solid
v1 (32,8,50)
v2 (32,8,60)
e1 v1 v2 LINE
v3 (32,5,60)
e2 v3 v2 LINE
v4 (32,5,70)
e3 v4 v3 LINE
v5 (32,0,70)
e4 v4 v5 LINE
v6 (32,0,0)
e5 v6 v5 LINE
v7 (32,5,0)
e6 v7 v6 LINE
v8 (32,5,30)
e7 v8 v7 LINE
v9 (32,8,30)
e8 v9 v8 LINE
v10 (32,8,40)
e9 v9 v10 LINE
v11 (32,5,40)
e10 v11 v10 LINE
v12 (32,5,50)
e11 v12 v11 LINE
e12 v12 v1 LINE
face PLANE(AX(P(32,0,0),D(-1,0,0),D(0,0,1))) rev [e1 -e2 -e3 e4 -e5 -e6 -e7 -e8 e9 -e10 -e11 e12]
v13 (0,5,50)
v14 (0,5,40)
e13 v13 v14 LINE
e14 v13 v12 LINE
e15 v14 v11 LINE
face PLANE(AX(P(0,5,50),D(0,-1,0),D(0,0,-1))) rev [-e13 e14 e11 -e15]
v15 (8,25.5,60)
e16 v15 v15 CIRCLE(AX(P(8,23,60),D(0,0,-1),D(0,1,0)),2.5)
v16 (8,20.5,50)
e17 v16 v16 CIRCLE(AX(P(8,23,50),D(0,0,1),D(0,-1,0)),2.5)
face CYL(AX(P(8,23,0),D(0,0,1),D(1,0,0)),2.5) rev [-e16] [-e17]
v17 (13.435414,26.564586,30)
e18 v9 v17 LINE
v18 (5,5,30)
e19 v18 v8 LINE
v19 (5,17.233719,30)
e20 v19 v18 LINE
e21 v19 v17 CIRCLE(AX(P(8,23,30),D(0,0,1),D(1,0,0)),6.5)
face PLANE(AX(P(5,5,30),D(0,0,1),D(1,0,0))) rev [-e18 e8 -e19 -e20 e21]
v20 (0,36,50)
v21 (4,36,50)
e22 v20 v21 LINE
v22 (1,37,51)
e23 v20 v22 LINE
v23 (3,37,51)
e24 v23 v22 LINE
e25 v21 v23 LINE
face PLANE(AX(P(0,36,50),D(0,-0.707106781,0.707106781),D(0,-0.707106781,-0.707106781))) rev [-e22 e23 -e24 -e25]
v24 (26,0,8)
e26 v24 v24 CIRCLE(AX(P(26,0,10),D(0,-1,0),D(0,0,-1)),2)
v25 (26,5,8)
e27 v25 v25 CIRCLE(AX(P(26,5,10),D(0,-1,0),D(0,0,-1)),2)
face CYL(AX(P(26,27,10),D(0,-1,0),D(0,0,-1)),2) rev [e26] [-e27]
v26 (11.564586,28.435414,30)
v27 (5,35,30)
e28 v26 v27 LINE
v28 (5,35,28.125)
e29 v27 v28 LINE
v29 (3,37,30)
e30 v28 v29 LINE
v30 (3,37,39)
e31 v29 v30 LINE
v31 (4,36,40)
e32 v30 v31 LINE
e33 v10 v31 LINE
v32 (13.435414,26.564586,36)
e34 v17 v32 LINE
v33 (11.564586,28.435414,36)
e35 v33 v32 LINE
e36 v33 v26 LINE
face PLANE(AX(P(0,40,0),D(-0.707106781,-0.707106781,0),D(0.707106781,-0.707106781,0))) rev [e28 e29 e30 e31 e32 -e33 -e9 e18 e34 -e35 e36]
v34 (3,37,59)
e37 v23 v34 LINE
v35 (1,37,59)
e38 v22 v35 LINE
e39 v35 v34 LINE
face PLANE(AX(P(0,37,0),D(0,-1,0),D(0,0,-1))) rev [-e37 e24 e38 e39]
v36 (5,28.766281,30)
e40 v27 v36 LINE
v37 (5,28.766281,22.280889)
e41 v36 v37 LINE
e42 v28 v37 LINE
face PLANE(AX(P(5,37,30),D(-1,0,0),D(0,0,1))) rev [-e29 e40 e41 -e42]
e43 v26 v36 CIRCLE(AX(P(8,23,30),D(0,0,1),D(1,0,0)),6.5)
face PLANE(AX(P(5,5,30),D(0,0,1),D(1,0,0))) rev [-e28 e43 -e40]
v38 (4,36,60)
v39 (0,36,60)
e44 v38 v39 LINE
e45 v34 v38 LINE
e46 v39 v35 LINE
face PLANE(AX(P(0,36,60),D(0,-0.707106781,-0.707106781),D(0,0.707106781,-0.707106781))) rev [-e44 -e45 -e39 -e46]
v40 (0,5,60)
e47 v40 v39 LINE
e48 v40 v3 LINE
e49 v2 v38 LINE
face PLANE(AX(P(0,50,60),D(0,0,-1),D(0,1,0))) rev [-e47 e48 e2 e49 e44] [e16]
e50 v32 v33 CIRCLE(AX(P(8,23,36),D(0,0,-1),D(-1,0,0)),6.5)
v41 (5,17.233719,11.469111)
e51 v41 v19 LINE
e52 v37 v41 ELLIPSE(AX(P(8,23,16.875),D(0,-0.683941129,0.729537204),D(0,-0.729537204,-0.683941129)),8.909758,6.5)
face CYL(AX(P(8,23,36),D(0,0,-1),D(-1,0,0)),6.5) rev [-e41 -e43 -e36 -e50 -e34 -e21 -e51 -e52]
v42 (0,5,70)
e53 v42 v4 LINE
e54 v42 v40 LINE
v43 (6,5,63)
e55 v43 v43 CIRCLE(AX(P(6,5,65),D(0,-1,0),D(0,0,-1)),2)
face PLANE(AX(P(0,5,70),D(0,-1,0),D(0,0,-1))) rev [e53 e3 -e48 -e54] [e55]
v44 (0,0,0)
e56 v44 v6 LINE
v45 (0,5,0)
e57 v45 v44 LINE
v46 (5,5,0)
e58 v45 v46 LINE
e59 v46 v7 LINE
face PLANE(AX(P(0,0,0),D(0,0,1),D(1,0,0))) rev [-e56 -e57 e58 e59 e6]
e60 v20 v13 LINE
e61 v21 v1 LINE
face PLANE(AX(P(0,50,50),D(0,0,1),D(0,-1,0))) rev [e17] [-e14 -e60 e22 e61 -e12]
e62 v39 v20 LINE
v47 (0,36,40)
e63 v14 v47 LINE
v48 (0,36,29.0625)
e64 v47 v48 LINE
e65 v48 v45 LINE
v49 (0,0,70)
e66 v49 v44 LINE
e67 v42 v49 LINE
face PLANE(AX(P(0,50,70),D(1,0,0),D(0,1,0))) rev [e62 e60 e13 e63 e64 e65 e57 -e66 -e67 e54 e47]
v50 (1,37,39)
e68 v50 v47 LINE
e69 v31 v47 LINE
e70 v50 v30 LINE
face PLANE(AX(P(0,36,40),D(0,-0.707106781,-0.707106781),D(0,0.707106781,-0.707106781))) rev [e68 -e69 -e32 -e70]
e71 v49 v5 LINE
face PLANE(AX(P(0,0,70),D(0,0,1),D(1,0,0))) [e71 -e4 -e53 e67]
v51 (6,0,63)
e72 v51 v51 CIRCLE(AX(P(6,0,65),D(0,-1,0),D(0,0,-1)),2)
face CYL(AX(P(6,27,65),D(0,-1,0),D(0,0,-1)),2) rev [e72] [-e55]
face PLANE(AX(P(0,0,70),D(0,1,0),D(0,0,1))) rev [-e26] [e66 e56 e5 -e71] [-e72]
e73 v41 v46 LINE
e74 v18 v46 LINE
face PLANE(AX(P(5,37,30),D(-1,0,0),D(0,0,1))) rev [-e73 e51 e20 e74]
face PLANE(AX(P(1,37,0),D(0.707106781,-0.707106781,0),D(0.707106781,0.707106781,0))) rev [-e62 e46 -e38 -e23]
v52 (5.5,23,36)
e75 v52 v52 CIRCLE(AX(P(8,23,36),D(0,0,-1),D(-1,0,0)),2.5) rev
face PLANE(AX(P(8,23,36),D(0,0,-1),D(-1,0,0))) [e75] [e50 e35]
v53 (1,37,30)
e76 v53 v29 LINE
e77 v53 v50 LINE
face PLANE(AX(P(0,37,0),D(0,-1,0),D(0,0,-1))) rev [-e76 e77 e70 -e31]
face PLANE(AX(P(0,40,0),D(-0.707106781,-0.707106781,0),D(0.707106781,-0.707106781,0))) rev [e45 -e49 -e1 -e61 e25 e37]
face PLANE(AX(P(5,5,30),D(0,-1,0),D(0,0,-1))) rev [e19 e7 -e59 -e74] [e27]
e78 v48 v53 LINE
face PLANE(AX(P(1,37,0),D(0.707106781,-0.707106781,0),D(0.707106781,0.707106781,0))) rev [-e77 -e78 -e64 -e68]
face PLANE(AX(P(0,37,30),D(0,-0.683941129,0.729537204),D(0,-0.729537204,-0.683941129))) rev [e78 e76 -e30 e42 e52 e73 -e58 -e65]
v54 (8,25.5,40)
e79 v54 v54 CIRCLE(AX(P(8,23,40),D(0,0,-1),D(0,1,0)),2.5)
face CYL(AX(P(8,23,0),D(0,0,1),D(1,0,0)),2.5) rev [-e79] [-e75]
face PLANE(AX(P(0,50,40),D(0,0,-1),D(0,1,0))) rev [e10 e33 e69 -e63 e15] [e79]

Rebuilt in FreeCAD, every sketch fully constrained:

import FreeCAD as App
import Part
import Sketcher
from FreeCAD import Vector
Q = App.Units.Quantity


def edges_at(feature, points):
    """Names of the edges that pass closest to the given points."""
    edges = feature.Shape.Edges
    near = lambda p: min(range(len(edges)), key=lambda i: edges[i].distToShape(Part.Vertex(*p))[0])
    return sorted({f"Edge{near(p) + 1}" for p in points})

doc = App.newDocument("Part")
params = doc.addObject("Spreadsheet::Sheet", "Params")
for row, (alias, value) in enumerate([
    ("sketch1_width", "50 mm"),
    ("pad1_length", "70 mm"),
    ("sketch2_width", "18 mm"),
    ("sketch3_width", "45 mm"),
    ("sketch3_height", "10 mm"),
    ("sketch4_height", "10 mm"),
    ("sketch5_width", "3 mm"),
    ("sketch6_width", "32 mm"),
    ("sketch6_height", "30 mm"),
    ("pocket5_length", "27 mm"),
    ("sketch7_width", "32 mm"),
    ("sketch7_height", "30 mm"),
    ("sketch8_diameter", "4 mm"),
    ("pocket7_length", "27 mm"),
    ("sketch9_diameter", "5 mm"),
    ("sketch10_diameter", "13 mm"),
    ("pocket9_length", "26 mm"),
    ("pocket9_length2", "6 mm"),
    ("chamfer_size", "1 mm"),
], start=1):
    params.set(f"A{row}", alias)
    params.set(f"B{row}", "=" + value)
    params.setAlias(f"B{row}", alias)

body = doc.addObject("PartDesign::Body", "Body")

# Sketch on XY plane
sketch1 = doc.addObject("Sketcher::SketchObject", "Sketch")
body.addObject(sketch1)
sketch1.AttachmentSupport = (doc.XY_Plane, [""])
sketch1.MapMode = "FlatFace"
sketch1.addGeometry(Part.LineSegment(Vector(0, 0, 0), Vector(50, 0, 0)), False)
sketch1.addGeometry(Part.LineSegment(Vector(50, 0, 0), Vector(0, 50, 0)), False)
sketch1.addGeometry(Part.LineSegment(Vector(0, 50, 0), Vector(0, 0, 0)), False)
sketch1.addConstraint(Sketcher.Constraint("Coincident", 0, 2, 1, 1))
sketch1.addConstraint(Sketcher.Constraint("Coincident", 1, 2, 2, 1))
sketch1.addConstraint(Sketcher.Constraint("Coincident", 2, 2, 0, 1))
sketch1.addConstraint(Sketcher.Constraint("Horizontal", 0))
sketch1.addConstraint(Sketcher.Constraint("Vertical", 2))
sketch1.addConstraint(Sketcher.Constraint("Coincident", 2, 2, -1, 1))
sketch1.addConstraint(Sketcher.Constraint("Equal", 0, 2))
sketch1.addConstraint(Sketcher.Constraint("DistanceX", 0, 1, 0, 2, 50.0))
sketch1.setExpression("Constraints[7]", "Params.sketch1_width")
pad1 = doc.addObject("PartDesign::Pad", "Pad")
body.addObject(pad1)
pad1.Profile = sketch1
pad1.setExpression("Length", "Params.pad1_length")

# Sketch on XY plane
sketch2 = doc.addObject("Sketcher::SketchObject", "Sketch001")
body.addObject(sketch2)
sketch2.AttachmentSupport = (doc.XY_Plane, [""])
sketch2.MapMode = "FlatFace"
sketch2.AttachmentOffset = App.Placement(Vector(0, 0, 70), App.Rotation())
sketch2.addGeometry(Part.LineSegment(Vector(32, 0, 0), Vector(50, 0, 0)), False)
sketch2.addGeometry(Part.LineSegment(Vector(50, 0, 0), Vector(32, 18, 0)), False)
sketch2.addGeometry(Part.LineSegment(Vector(32, 18, 0), Vector(32, 0, 0)), False)
sketch2.addConstraint(Sketcher.Constraint("Coincident", 0, 2, 1, 1))
sketch2.addConstraint(Sketcher.Constraint("Coincident", 1, 2, 2, 1))
sketch2.addConstraint(Sketcher.Constraint("Coincident", 2, 2, 0, 1))
sketch2.addConstraint(Sketcher.Constraint("Horizontal", 0))
sketch2.addConstraint(Sketcher.Constraint("Vertical", 2))
sketch2.addConstraint(Sketcher.Constraint("PointOnObject", 0, 2, -1))
sketch2.addConstraint(Sketcher.Constraint("Equal", 0, 2))
sketch2.addConstraint(Sketcher.Constraint("DistanceX", 0, 1, 0, 2, 18.0))
sketch2.addConstraint(Sketcher.Constraint("DistanceX", -1, 1, 0, 2, 50.0))
sketch2.setExpression("Constraints[7]", "Params.sketch2_width")
pocket1 = doc.addObject("PartDesign::Pocket", "Pocket")
body.addObject(pocket1)
pocket1.Profile = sketch2
pocket1.Type = "ThroughAll"

# Sketch on YZ plane
sketch3 = doc.addObject("Sketcher::SketchObject", "Sketch002")
body.addObject(sketch3)
sketch3.AttachmentSupport = (doc.YZ_Plane, [""])
sketch3.MapMode = "FlatFace"
sketch3.AttachmentOffset = App.Placement(Vector(0, 0, 32), App.Rotation())
sketch3.addGeometry(Part.LineSegment(Vector(50, 70, 0), Vector(5, 70, 0)), False)
sketch3.addGeometry(Part.LineSegment(Vector(5, 70, 0), Vector(5, 60, 0)), False)
sketch3.addGeometry(Part.LineSegment(Vector(5, 60, 0), Vector(50, 60, 0)), False)
sketch3.addGeometry(Part.LineSegment(Vector(50, 60, 0), Vector(50, 70, 0)), False)
sketch3.addGeometry(Part.LineSegment(Vector(50, 50, 0), Vector(5, 50, 0)), False)
sketch3.addGeometry(Part.LineSegment(Vector(5, 50, 0), Vector(5, 40, 0)), False)
sketch3.addGeometry(Part.LineSegment(Vector(5, 40, 0), Vector(50, 40, 0)), False)
sketch3.addGeometry(Part.LineSegment(Vector(50, 40, 0), Vector(50, 50, 0)), False)
sketch3.addConstraint(Sketcher.Constraint("Coincident", 0, 2, 1, 1))
sketch3.addConstraint(Sketcher.Constraint("Coincident", 1, 2, 2, 1))
sketch3.addConstraint(Sketcher.Constraint("Coincident", 2, 2, 3, 1))
sketch3.addConstraint(Sketcher.Constraint("Coincident", 3, 2, 0, 1))
sketch3.addConstraint(Sketcher.Constraint("Coincident", 4, 2, 5, 1))
sketch3.addConstraint(Sketcher.Constraint("Coincident", 5, 2, 6, 1))
sketch3.addConstraint(Sketcher.Constraint("Coincident", 6, 2, 7, 1))
sketch3.addConstraint(Sketcher.Constraint("Coincident", 7, 2, 4, 1))
sketch3.addConstraint(Sketcher.Constraint("Horizontal", 0))
sketch3.addConstraint(Sketcher.Constraint("Vertical", 1))
sketch3.addConstraint(Sketcher.Constraint("Horizontal", 2))
sketch3.addConstraint(Sketcher.Constraint("Vertical", 3))
sketch3.addConstraint(Sketcher.Constraint("Horizontal", 4))
sketch3.addConstraint(Sketcher.Constraint("Vertical", 5))
sketch3.addConstraint(Sketcher.Constraint("Horizontal", 6))
sketch3.addConstraint(Sketcher.Constraint("Vertical", 7))
sketch3.addConstraint(Sketcher.Constraint("Vertical", 1, 2, 4, 2))
sketch3.addConstraint(Sketcher.Constraint("Vertical", 3, 2, 6, 2))
sketch3.addConstraint(Sketcher.Constraint("Equal", 3, 5))
sketch3.addConstraint(Sketcher.Constraint("DistanceX", 0, 2, 0, 1, 45.0))
sketch3.addConstraint(Sketcher.Constraint("DistanceY", 1, 2, 1, 1, 10.0))
sketch3.addConstraint(Sketcher.Constraint("DistanceX", -1, 1, 0, 2, 5.0))
sketch3.addConstraint(Sketcher.Constraint("DistanceY", -1, 1, 0, 2, 70.0))
sketch3.addConstraint(Sketcher.Constraint("DistanceY", -1, 1, 4, 2, 50.0))
sketch3.setExpression("Constraints[19]", "Params.sketch3_width")
sketch3.setExpression("Constraints[20]", "Params.sketch3_height")
pocket2 = doc.addObject("PartDesign::Pocket", "Pocket001")
body.addObject(pocket2)
pocket2.Profile = sketch3
pocket2.Type = "ThroughAll"

# Sketch on XY plane
sketch4 = doc.addObject("Sketcher::SketchObject", "Sketch003")
body.addObject(sketch4)
sketch4.AttachmentSupport = (doc.XY_Plane, [""])
sketch4.MapMode = "FlatFace"
sketch4.AttachmentOffset = App.Placement(Vector(0, 0, 70), App.Rotation())
sketch4.addGeometry(Part.LineSegment(Vector(0, 50, 0), Vector(0, 40, 0)), False)
sketch4.addGeometry(Part.LineSegment(Vector(0, 40, 0), Vector(32, 8, 0)), False)
sketch4.addGeometry(Part.LineSegment(Vector(32, 8, 0), Vector(32, 18, 0)), False)
sketch4.addGeometry(Part.LineSegment(Vector(32, 18, 0), Vector(0, 50, 0)), False)
sketch4.addConstraint(Sketcher.Constraint("Coincident", 0, 2, 1, 1))
sketch4.addConstraint(Sketcher.Constraint("Coincident", 1, 2, 2, 1))
sketch4.addConstraint(Sketcher.Constraint("Coincident", 2, 2, 3, 1))
sketch4.addConstraint(Sketcher.Constraint("Coincident", 3, 2, 0, 1))
sketch4.addConstraint(Sketcher.Constraint("Vertical", 0))
sketch4.addConstraint(Sketcher.Constraint("Vertical", 2))
sketch4.addConstraint(Sketcher.Constraint("PointOnObject", 0, 2, -2))
sketch4.addConstraint(Sketcher.Constraint("Parallel", 1, 3))
sketch4.addConstraint(Sketcher.Constraint("DistanceY", 0, 2, 0, 1, 10.0))
sketch4.addConstraint(Sketcher.Constraint("Angle", 1, Q("-45 deg")))
sketch4.addConstraint(Sketcher.Constraint("DistanceY", -1, 1, 0, 2, 40.0))
sketch4.addConstraint(Sketcher.Constraint("DistanceX", -1, 1, 1, 2, 32.0))
sketch4.setExpression("Constraints[8]", "Params.sketch4_height")
pocket3 = doc.addObject("PartDesign::Pocket", "Pocket002")
body.addObject(pocket3)
pocket3.Profile = sketch4
pocket3.Type = "ThroughAll"

# Sketch on XY plane
sketch5 = doc.addObject("Sketcher::SketchObject", "Sketch004")
body.addObject(sketch5)
sketch5.AttachmentSupport = (doc.XY_Plane, [""])
sketch5.MapMode = "FlatFace"
sketch5.AttachmentOffset = App.Placement(Vector(0, 0, 70), App.Rotation())
sketch5.addGeometry(Part.LineSegment(Vector(0, 40, 0), Vector(0, 37, 0)), False)
sketch5.addGeometry(Part.LineSegment(Vector(0, 37, 0), Vector(3, 37, 0)), False)
sketch5.addGeometry(Part.LineSegment(Vector(3, 37, 0), Vector(0, 40, 0)), False)
sketch5.addConstraint(Sketcher.Constraint("Coincident", 0, 2, 1, 1))
sketch5.addConstraint(Sketcher.Constraint("Coincident", 1, 2, 2, 1))
sketch5.addConstraint(Sketcher.Constraint("Coincident", 2, 2, 0, 1))
sketch5.addConstraint(Sketcher.Constraint("Vertical", 0))
sketch5.addConstraint(Sketcher.Constraint("Horizontal", 1))
sketch5.addConstraint(Sketcher.Constraint("PointOnObject", 0, 2, -2))
sketch5.addConstraint(Sketcher.Constraint("Equal", 1, 0))
sketch5.addConstraint(Sketcher.Constraint("DistanceX", 1, 1, 1, 2, 3.0))
sketch5.addConstraint(Sketcher.Constraint("DistanceY", -1, 1, 0, 2, 37.0))
sketch5.setExpression("Constraints[7]", "Params.sketch5_width")
pocket4 = doc.addObject("PartDesign::Pocket", "Pocket003")
body.addObject(pocket4)
pocket4.Profile = sketch5
pocket4.Type = "ThroughAll"

# Sketch on YZ plane
sketch6 = doc.addObject("Sketcher::SketchObject", "Sketch005")
body.addObject(sketch6)
sketch6.AttachmentSupport = (doc.YZ_Plane, [""])
sketch6.MapMode = "FlatFace"
sketch6.AttachmentOffset = App.Placement(Vector(0, 0, 32), App.Rotation())
sketch6.addGeometry(Part.LineSegment(Vector(37, 30, 0), Vector(5, 30, 0)), False)
sketch6.addGeometry(Part.LineSegment(Vector(5, 30, 0), Vector(5, 0, 0)), False)
sketch6.addGeometry(Part.LineSegment(Vector(5, 0, 0), Vector(37, 0, 0)), False)
sketch6.addGeometry(Part.LineSegment(Vector(37, 0, 0), Vector(37, 30, 0)), False)
sketch6.addConstraint(Sketcher.Constraint("Coincident", 0, 2, 1, 1))
sketch6.addConstraint(Sketcher.Constraint("Coincident", 1, 2, 2, 1))
sketch6.addConstraint(Sketcher.Constraint("Coincident", 2, 2, 3, 1))
sketch6.addConstraint(Sketcher.Constraint("Coincident", 3, 2, 0, 1))
sketch6.addConstraint(Sketcher.Constraint("Horizontal", 0))
sketch6.addConstraint(Sketcher.Constraint("Vertical", 1))
sketch6.addConstraint(Sketcher.Constraint("Horizontal", 2))
sketch6.addConstraint(Sketcher.Constraint("Vertical", 3))
sketch6.addConstraint(Sketcher.Constraint("PointOnObject", 1, 2, -1))
sketch6.addConstraint(Sketcher.Constraint("DistanceX", 0, 2, 0, 1, 32.0))
sketch6.addConstraint(Sketcher.Constraint("DistanceY", 1, 2, 1, 1, 30.0))
sketch6.addConstraint(Sketcher.Constraint("DistanceX", -1, 1, 0, 2, 5.0))
sketch6.setExpression("Constraints[9]", "Params.sketch6_width")
sketch6.setExpression("Constraints[10]", "Params.sketch6_height")
pocket5 = doc.addObject("PartDesign::Pocket", "Pocket004")
body.addObject(pocket5)
pocket5.Profile = sketch6
pocket5.setExpression("Length", "Params.pocket5_length")

# Sketch on YZ plane
sketch7 = doc.addObject("Sketcher::SketchObject", "Sketch006")
body.addObject(sketch7)
sketch7.AttachmentSupport = (doc.YZ_Plane, [""])
sketch7.MapMode = "FlatFace"
sketch7.AttachmentOffset = App.Placement(Vector(0, 0, 5), App.Rotation())
sketch7.addGeometry(Part.LineSegment(Vector(5, 0, 0), Vector(37, 0, 0)), False)
sketch7.addGeometry(Part.LineSegment(Vector(37, 0, 0), Vector(37, 30, 0)), False)
sketch7.addGeometry(Part.LineSegment(Vector(37, 30, 0), Vector(5, 0, 0)), False)
sketch7.addConstraint(Sketcher.Constraint("Coincident", 0, 2, 1, 1))
sketch7.addConstraint(Sketcher.Constraint("Coincident", 1, 2, 2, 1))
sketch7.addConstraint(Sketcher.Constraint("Coincident", 2, 2, 0, 1))
sketch7.addConstraint(Sketcher.Constraint("Horizontal", 0))
sketch7.addConstraint(Sketcher.Constraint("Vertical", 1))
sketch7.addConstraint(Sketcher.Constraint("PointOnObject", 0, 2, -1))
sketch7.addConstraint(Sketcher.Constraint("DistanceX", 0, 1, 0, 2, 32.0))
sketch7.addConstraint(Sketcher.Constraint("DistanceY", 1, 1, 1, 2, 30.0))
sketch7.addConstraint(Sketcher.Constraint("DistanceX", -1, 1, 0, 2, 37.0))
sketch7.setExpression("Constraints[6]", "Params.sketch7_width")
sketch7.setExpression("Constraints[7]", "Params.sketch7_height")
pocket6 = doc.addObject("PartDesign::Pocket", "Pocket005")
body.addObject(pocket6)
pocket6.Profile = sketch7
pocket6.Type = "ThroughAll"

# Sketch on XZ plane
sketch8 = doc.addObject("Sketcher::SketchObject", "Sketch007")
body.addObject(sketch8)
sketch8.AttachmentSupport = (doc.XZ_Plane, [""])
sketch8.MapMode = "FlatFace"
sketch8.addGeometry(Part.Circle(Vector(6, 65, 0), Vector(0, 0, 1), 2), False)
sketch8.addGeometry(Part.Circle(Vector(26, 10, 0), Vector(0, 0, 1), 2), False)
sketch8.addConstraint(Sketcher.Constraint("Equal", 0, 1))
sketch8.addConstraint(Sketcher.Constraint("Diameter", 0, 4.0))
sketch8.addConstraint(Sketcher.Constraint("DistanceX", -1, 1, 0, 3, 6.0))
sketch8.addConstraint(Sketcher.Constraint("DistanceY", -1, 1, 0, 3, 65.0))
sketch8.addConstraint(Sketcher.Constraint("DistanceX", -1, 1, 1, 3, 26.0))
sketch8.addConstraint(Sketcher.Constraint("DistanceY", -1, 1, 1, 3, 10.0))
sketch8.setExpression("Constraints[1]", "Params.sketch8_diameter")
pocket7 = doc.addObject("PartDesign::Pocket", "Pocket006")
body.addObject(pocket7)
pocket7.Profile = sketch8
pocket7.setExpression("Length", "Params.pocket7_length")

# Sketch on XY plane
sketch9 = doc.addObject("Sketcher::SketchObject", "Sketch008")
body.addObject(sketch9)
sketch9.AttachmentSupport = (doc.XY_Plane, [""])
sketch9.MapMode = "FlatFace"
sketch9.AttachmentOffset = App.Placement(Vector(0, 0, 70), App.Rotation())
sketch9.addGeometry(Part.Circle(Vector(8, 23, 0), Vector(0, 0, 1), 2.5), False)
sketch9.addConstraint(Sketcher.Constraint("Diameter", 0, 5.0))
sketch9.addConstraint(Sketcher.Constraint("DistanceX", -1, 1, 0, 3, 8.0))
sketch9.addConstraint(Sketcher.Constraint("DistanceY", -1, 1, 0, 3, 23.0))
sketch9.setExpression("Constraints[0]", "Params.sketch9_diameter")
pocket8 = doc.addObject("PartDesign::Pocket", "Pocket007")
body.addObject(pocket8)
pocket8.Profile = sketch9
pocket8.Type = "ThroughAll"

# Sketch on XY plane
sketch10 = doc.addObject("Sketcher::SketchObject", "Sketch009")
body.addObject(sketch10)
sketch10.AttachmentSupport = (doc.XY_Plane, [""])
sketch10.MapMode = "FlatFace"
sketch10.AttachmentOffset = App.Placement(Vector(0, 0, 30), App.Rotation())
sketch10.addGeometry(Part.Circle(Vector(8, 23, 0), Vector(0, 0, 1), 6.5), False)
sketch10.addConstraint(Sketcher.Constraint("Diameter", 0, 13.0))
sketch10.addConstraint(Sketcher.Constraint("DistanceX", -1, 1, 0, 3, 8.0))
sketch10.addConstraint(Sketcher.Constraint("DistanceY", -1, 1, 0, 3, 23.0))
sketch10.setExpression("Constraints[0]", "Params.sketch10_diameter")
pocket9 = doc.addObject("PartDesign::Pocket", "Pocket008")
body.addObject(pocket9)
pocket9.Profile = sketch10
pocket9.Type = "TwoLengths"
pocket9.setExpression("Length", "Params.pocket9_length")
pocket9.setExpression("Length2", "Params.pocket9_length2")
doc.recompute()

chamfer = doc.addObject("PartDesign::Chamfer", "Chamfer")
body.addObject(chamfer)
chamfer.Base = (pocket9, edges_at(pocket9, [
    (0, 37, 35),
    (1.5, 37, 60),
    (1.5, 37, 50),
    (1.5, 37, 40),
    (0, 37, 55),
]))
chamfer.setExpression("Size", "Params.chamfer_size")

doc.recompute()
